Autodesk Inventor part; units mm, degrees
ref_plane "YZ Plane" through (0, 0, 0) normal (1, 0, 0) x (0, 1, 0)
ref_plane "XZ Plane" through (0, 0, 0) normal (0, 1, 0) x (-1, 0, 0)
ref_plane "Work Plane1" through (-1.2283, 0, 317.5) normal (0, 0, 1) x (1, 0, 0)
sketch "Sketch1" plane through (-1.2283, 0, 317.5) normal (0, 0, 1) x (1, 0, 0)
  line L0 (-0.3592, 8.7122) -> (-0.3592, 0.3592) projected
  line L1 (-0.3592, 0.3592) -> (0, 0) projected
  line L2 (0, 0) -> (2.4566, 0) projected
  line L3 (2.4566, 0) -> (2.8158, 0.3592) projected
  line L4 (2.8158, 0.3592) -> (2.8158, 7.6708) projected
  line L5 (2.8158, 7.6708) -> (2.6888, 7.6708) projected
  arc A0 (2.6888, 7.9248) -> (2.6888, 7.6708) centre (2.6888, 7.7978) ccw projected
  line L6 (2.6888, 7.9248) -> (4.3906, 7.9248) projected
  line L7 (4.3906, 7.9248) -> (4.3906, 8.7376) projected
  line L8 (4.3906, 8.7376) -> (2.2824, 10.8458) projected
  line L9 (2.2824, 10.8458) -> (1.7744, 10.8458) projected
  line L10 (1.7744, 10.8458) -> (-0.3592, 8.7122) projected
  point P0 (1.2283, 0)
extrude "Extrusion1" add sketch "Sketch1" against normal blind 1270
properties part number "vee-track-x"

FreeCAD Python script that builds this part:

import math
import FreeCAD as App
import Part
import Sketcher
Q = App.Units.Quantity

doc = App.newDocument("Part")
body = doc.addObject("PartDesign::Body", "Body")

sketch1 = doc.addObject("Sketcher::SketchObject", "Sketch")
body.addObject(sketch1)
sketch1.AttachmentSupport = (doc.XY_Plane, [""])
sketch1.MapMode = "FlatFace"
sketch1.AttachmentOffset = App.Placement(App.Vector(0, 0, 12.5 * 25.4), App.Rotation())
sketch1.addGeometry([
    Part.LineSegment(App.Vector(0.5461, 10.8458, 0), App.Vector(-1.5875, 8.7122, 0)),
    Part.LineSegment(App.Vector(-1.5875, 8.7122, 0), App.Vector(-1.5875, 0.3592, 0)),
    Part.LineSegment(App.Vector(-1.5875, 0.3592, 0), App.Vector(-1.2283, 0, 0)),
    Part.LineSegment(App.Vector(-1.2283, 0, 0), App.Vector(1.2283, 0, 0)),
    Part.LineSegment(App.Vector(1.2283, 0, 0), App.Vector(1.5875, 0.3592, 0)),
    Part.LineSegment(App.Vector(1.5875, 0.3592, 0), App.Vector(1.5875, 7.6708, 0)),
    Part.LineSegment(App.Vector(1.5875, 7.6708, 0), App.Vector(1.4605, 7.6708, 0)),
    Part.ArcOfCircle(Part.Circle(App.Vector(1.4605, 7.7978, 0), App.Vector(0, 0, 1), 0.127), math.radians(90), math.radians(270)),
    Part.LineSegment(App.Vector(1.4605, 7.9248, 0), App.Vector(3.1623, 7.9248, 0)),
    Part.LineSegment(App.Vector(3.1623, 7.9248, 0), App.Vector(3.1623, 8.7376, 0)),
    Part.LineSegment(App.Vector(3.1623, 8.7376, 0), App.Vector(1.0541, 10.8458, 0)),
    Part.LineSegment(App.Vector(1.0541, 10.8458, 0), App.Vector(0.5461, 10.8458, 0)),
], False)
sketch1.addConstraint([
    Sketcher.Constraint("Coincident", 0, 2, 1, 1),
    Sketcher.Constraint("Coincident", 1, 2, 2, 1),
    Sketcher.Constraint("Coincident", 2, 2, 3, 1),
    Sketcher.Constraint("Coincident", 3, 2, 4, 1),
    Sketcher.Constraint("Coincident", 4, 2, 5, 1),
    Sketcher.Constraint("Coincident", 5, 2, 6, 1),
    Sketcher.Constraint("Tangent", 6, 2, 7, 2),
    Sketcher.Constraint("Tangent", 7, 1, 8, 1),
    Sketcher.Constraint("Coincident", 8, 2, 9, 1),
    Sketcher.Constraint("Coincident", 9, 2, 10, 1),
    Sketcher.Constraint("Coincident", 10, 2, 11, 1),
    Sketcher.Constraint("Coincident", 11, 2, 0, 1),
    Sketcher.Constraint("Vertical", 1),
    Sketcher.Constraint("Horizontal", 3),
    Sketcher.Constraint("Vertical", 5),
    Sketcher.Constraint("Horizontal", 6),
    Sketcher.Constraint("Horizontal", 8),
    Sketcher.Constraint("Vertical", 9),
    Sketcher.Constraint("Horizontal", 11),
    Sketcher.Constraint("Symmetric", 2, 2, 3, 2, -1, 1),
    Sketcher.Constraint("Symmetric", 1, 2, 4, 2, -2),
    Sketcher.Constraint("Perpendicular", 0, 2),
    Sketcher.Constraint("Perpendicular", 2, 4),
    Sketcher.Constraint("Perpendicular", 4, 10),
    Sketcher.Constraint("Radius", 7, Q("0.005 in")),
    Sketcher.Constraint("DistanceX", 11, 2, 11, 1, Q("0.02 in")),
    Sketcher.Constraint("Distance", 2, Q("0.02 in")),
    Sketcher.Constraint("DistanceX", 6, 2, 6, 1, Q("0.005 in")),
    Sketcher.Constraint("DistanceX", 8, 1, 8, 2, Q("0.067 in")),
    Sketcher.Constraint("DistanceY", 9, 1, 9, 2, Q("0.032 in")),
    Sketcher.Constraint("DistanceX", 0, 2, 7, 3, Q("0.12 in")),
    Sketcher.Constraint("DistanceY", 7, 3, 10, 2, Q("0.12 in")),
    Sketcher.Constraint("DistanceY", -1, 1, 7, 3, Q("0.307 in")),
])
pad1 = doc.addObject("PartDesign::Pad", "Pad")
body.addObject(pad1)
pad1.Profile = sketch1
pad1.Length = Q("50 in")
pad1.Reversed = True

doc.recompute()
